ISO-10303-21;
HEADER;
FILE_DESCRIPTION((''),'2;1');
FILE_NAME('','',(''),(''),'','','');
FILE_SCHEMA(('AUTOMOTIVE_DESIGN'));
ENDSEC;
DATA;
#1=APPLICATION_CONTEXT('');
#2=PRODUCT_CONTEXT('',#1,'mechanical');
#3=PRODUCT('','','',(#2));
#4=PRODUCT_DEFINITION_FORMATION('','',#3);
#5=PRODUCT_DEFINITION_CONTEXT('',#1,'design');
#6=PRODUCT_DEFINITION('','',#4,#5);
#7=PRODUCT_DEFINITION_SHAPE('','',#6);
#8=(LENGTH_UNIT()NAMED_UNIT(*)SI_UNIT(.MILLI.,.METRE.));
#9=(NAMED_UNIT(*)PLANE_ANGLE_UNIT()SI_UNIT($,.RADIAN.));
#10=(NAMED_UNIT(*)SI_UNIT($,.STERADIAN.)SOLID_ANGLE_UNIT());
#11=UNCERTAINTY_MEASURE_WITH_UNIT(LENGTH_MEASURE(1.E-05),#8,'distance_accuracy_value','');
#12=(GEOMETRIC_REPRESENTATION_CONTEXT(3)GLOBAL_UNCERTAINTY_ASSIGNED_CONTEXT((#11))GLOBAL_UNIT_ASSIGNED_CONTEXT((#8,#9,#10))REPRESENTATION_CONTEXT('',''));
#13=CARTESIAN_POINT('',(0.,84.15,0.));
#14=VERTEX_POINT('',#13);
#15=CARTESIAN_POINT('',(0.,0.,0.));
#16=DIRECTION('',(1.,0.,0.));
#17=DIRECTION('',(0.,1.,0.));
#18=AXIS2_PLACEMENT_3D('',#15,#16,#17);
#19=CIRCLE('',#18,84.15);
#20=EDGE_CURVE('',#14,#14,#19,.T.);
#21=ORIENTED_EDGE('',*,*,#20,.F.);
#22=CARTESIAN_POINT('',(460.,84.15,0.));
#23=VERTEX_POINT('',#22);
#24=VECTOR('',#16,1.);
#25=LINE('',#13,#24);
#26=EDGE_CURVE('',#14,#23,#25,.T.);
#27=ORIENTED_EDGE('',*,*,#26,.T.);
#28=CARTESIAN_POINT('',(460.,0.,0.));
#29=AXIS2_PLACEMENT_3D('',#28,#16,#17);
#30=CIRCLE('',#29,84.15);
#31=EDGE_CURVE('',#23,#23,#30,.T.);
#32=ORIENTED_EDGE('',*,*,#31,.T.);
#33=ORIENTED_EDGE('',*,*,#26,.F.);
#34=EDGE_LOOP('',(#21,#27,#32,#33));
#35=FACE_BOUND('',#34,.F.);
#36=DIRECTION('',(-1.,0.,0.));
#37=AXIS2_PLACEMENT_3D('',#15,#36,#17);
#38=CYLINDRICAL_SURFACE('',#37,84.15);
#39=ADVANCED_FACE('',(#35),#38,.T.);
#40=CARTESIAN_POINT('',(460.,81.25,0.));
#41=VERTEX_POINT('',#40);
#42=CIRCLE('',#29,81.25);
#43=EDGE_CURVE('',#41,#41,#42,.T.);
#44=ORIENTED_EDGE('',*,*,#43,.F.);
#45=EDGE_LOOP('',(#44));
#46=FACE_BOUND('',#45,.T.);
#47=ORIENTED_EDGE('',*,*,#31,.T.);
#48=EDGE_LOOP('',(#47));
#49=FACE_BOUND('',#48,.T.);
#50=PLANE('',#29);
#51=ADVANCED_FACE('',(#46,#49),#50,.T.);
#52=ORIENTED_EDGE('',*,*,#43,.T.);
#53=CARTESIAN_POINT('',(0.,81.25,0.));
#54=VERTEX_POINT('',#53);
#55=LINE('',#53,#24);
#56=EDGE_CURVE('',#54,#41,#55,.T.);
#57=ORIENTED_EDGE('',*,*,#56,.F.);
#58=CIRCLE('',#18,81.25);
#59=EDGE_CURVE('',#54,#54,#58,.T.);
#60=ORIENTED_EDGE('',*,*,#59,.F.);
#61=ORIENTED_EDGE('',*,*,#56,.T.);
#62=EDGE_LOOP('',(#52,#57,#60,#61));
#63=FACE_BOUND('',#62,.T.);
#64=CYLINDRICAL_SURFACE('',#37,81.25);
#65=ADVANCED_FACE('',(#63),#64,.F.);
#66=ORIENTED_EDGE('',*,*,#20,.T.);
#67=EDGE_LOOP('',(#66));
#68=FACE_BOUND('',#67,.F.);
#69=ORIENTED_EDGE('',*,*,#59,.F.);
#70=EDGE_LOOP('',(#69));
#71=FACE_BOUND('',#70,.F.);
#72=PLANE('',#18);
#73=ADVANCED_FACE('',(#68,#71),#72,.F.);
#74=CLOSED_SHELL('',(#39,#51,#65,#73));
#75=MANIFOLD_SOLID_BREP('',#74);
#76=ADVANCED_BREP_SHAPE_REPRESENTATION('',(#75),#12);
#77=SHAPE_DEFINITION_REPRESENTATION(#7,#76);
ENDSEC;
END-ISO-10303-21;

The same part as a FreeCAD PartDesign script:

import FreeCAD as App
import Part
import Sketcher

V = App.Vector

doc = App.newDocument("Part")
body = doc.addObject("PartDesign::Body", "Body")

sketch1 = body.newObject("Sketcher::SketchObject", "Sketch")
sketch1.AttachmentSupport = (doc.getObject("YZ_Plane"), [""])
sketch1.MapMode = "FlatFace"
sketch1.addGeometry([
    Part.Circle(V(0, 0, 0), V(0, 0, 1), 84),
    Part.Circle(V(0, 0, 0), V(0, 0, 1), 81),
], False)
sketch1.addConstraint([
    Sketcher.Constraint("Coincident", 0, 3, -1, 1),
    Sketcher.Constraint("Coincident", 1, 3, -1, 1),
    Sketcher.Constraint("Diameter", 0, 168.3),
    Sketcher.Constraint("Diameter", 1, 162.5),
])
pad1 = body.newObject("PartDesign::Pad", "Pad")
pad1.Profile = sketch1
pad1.Length = 460

doc.recompute()
